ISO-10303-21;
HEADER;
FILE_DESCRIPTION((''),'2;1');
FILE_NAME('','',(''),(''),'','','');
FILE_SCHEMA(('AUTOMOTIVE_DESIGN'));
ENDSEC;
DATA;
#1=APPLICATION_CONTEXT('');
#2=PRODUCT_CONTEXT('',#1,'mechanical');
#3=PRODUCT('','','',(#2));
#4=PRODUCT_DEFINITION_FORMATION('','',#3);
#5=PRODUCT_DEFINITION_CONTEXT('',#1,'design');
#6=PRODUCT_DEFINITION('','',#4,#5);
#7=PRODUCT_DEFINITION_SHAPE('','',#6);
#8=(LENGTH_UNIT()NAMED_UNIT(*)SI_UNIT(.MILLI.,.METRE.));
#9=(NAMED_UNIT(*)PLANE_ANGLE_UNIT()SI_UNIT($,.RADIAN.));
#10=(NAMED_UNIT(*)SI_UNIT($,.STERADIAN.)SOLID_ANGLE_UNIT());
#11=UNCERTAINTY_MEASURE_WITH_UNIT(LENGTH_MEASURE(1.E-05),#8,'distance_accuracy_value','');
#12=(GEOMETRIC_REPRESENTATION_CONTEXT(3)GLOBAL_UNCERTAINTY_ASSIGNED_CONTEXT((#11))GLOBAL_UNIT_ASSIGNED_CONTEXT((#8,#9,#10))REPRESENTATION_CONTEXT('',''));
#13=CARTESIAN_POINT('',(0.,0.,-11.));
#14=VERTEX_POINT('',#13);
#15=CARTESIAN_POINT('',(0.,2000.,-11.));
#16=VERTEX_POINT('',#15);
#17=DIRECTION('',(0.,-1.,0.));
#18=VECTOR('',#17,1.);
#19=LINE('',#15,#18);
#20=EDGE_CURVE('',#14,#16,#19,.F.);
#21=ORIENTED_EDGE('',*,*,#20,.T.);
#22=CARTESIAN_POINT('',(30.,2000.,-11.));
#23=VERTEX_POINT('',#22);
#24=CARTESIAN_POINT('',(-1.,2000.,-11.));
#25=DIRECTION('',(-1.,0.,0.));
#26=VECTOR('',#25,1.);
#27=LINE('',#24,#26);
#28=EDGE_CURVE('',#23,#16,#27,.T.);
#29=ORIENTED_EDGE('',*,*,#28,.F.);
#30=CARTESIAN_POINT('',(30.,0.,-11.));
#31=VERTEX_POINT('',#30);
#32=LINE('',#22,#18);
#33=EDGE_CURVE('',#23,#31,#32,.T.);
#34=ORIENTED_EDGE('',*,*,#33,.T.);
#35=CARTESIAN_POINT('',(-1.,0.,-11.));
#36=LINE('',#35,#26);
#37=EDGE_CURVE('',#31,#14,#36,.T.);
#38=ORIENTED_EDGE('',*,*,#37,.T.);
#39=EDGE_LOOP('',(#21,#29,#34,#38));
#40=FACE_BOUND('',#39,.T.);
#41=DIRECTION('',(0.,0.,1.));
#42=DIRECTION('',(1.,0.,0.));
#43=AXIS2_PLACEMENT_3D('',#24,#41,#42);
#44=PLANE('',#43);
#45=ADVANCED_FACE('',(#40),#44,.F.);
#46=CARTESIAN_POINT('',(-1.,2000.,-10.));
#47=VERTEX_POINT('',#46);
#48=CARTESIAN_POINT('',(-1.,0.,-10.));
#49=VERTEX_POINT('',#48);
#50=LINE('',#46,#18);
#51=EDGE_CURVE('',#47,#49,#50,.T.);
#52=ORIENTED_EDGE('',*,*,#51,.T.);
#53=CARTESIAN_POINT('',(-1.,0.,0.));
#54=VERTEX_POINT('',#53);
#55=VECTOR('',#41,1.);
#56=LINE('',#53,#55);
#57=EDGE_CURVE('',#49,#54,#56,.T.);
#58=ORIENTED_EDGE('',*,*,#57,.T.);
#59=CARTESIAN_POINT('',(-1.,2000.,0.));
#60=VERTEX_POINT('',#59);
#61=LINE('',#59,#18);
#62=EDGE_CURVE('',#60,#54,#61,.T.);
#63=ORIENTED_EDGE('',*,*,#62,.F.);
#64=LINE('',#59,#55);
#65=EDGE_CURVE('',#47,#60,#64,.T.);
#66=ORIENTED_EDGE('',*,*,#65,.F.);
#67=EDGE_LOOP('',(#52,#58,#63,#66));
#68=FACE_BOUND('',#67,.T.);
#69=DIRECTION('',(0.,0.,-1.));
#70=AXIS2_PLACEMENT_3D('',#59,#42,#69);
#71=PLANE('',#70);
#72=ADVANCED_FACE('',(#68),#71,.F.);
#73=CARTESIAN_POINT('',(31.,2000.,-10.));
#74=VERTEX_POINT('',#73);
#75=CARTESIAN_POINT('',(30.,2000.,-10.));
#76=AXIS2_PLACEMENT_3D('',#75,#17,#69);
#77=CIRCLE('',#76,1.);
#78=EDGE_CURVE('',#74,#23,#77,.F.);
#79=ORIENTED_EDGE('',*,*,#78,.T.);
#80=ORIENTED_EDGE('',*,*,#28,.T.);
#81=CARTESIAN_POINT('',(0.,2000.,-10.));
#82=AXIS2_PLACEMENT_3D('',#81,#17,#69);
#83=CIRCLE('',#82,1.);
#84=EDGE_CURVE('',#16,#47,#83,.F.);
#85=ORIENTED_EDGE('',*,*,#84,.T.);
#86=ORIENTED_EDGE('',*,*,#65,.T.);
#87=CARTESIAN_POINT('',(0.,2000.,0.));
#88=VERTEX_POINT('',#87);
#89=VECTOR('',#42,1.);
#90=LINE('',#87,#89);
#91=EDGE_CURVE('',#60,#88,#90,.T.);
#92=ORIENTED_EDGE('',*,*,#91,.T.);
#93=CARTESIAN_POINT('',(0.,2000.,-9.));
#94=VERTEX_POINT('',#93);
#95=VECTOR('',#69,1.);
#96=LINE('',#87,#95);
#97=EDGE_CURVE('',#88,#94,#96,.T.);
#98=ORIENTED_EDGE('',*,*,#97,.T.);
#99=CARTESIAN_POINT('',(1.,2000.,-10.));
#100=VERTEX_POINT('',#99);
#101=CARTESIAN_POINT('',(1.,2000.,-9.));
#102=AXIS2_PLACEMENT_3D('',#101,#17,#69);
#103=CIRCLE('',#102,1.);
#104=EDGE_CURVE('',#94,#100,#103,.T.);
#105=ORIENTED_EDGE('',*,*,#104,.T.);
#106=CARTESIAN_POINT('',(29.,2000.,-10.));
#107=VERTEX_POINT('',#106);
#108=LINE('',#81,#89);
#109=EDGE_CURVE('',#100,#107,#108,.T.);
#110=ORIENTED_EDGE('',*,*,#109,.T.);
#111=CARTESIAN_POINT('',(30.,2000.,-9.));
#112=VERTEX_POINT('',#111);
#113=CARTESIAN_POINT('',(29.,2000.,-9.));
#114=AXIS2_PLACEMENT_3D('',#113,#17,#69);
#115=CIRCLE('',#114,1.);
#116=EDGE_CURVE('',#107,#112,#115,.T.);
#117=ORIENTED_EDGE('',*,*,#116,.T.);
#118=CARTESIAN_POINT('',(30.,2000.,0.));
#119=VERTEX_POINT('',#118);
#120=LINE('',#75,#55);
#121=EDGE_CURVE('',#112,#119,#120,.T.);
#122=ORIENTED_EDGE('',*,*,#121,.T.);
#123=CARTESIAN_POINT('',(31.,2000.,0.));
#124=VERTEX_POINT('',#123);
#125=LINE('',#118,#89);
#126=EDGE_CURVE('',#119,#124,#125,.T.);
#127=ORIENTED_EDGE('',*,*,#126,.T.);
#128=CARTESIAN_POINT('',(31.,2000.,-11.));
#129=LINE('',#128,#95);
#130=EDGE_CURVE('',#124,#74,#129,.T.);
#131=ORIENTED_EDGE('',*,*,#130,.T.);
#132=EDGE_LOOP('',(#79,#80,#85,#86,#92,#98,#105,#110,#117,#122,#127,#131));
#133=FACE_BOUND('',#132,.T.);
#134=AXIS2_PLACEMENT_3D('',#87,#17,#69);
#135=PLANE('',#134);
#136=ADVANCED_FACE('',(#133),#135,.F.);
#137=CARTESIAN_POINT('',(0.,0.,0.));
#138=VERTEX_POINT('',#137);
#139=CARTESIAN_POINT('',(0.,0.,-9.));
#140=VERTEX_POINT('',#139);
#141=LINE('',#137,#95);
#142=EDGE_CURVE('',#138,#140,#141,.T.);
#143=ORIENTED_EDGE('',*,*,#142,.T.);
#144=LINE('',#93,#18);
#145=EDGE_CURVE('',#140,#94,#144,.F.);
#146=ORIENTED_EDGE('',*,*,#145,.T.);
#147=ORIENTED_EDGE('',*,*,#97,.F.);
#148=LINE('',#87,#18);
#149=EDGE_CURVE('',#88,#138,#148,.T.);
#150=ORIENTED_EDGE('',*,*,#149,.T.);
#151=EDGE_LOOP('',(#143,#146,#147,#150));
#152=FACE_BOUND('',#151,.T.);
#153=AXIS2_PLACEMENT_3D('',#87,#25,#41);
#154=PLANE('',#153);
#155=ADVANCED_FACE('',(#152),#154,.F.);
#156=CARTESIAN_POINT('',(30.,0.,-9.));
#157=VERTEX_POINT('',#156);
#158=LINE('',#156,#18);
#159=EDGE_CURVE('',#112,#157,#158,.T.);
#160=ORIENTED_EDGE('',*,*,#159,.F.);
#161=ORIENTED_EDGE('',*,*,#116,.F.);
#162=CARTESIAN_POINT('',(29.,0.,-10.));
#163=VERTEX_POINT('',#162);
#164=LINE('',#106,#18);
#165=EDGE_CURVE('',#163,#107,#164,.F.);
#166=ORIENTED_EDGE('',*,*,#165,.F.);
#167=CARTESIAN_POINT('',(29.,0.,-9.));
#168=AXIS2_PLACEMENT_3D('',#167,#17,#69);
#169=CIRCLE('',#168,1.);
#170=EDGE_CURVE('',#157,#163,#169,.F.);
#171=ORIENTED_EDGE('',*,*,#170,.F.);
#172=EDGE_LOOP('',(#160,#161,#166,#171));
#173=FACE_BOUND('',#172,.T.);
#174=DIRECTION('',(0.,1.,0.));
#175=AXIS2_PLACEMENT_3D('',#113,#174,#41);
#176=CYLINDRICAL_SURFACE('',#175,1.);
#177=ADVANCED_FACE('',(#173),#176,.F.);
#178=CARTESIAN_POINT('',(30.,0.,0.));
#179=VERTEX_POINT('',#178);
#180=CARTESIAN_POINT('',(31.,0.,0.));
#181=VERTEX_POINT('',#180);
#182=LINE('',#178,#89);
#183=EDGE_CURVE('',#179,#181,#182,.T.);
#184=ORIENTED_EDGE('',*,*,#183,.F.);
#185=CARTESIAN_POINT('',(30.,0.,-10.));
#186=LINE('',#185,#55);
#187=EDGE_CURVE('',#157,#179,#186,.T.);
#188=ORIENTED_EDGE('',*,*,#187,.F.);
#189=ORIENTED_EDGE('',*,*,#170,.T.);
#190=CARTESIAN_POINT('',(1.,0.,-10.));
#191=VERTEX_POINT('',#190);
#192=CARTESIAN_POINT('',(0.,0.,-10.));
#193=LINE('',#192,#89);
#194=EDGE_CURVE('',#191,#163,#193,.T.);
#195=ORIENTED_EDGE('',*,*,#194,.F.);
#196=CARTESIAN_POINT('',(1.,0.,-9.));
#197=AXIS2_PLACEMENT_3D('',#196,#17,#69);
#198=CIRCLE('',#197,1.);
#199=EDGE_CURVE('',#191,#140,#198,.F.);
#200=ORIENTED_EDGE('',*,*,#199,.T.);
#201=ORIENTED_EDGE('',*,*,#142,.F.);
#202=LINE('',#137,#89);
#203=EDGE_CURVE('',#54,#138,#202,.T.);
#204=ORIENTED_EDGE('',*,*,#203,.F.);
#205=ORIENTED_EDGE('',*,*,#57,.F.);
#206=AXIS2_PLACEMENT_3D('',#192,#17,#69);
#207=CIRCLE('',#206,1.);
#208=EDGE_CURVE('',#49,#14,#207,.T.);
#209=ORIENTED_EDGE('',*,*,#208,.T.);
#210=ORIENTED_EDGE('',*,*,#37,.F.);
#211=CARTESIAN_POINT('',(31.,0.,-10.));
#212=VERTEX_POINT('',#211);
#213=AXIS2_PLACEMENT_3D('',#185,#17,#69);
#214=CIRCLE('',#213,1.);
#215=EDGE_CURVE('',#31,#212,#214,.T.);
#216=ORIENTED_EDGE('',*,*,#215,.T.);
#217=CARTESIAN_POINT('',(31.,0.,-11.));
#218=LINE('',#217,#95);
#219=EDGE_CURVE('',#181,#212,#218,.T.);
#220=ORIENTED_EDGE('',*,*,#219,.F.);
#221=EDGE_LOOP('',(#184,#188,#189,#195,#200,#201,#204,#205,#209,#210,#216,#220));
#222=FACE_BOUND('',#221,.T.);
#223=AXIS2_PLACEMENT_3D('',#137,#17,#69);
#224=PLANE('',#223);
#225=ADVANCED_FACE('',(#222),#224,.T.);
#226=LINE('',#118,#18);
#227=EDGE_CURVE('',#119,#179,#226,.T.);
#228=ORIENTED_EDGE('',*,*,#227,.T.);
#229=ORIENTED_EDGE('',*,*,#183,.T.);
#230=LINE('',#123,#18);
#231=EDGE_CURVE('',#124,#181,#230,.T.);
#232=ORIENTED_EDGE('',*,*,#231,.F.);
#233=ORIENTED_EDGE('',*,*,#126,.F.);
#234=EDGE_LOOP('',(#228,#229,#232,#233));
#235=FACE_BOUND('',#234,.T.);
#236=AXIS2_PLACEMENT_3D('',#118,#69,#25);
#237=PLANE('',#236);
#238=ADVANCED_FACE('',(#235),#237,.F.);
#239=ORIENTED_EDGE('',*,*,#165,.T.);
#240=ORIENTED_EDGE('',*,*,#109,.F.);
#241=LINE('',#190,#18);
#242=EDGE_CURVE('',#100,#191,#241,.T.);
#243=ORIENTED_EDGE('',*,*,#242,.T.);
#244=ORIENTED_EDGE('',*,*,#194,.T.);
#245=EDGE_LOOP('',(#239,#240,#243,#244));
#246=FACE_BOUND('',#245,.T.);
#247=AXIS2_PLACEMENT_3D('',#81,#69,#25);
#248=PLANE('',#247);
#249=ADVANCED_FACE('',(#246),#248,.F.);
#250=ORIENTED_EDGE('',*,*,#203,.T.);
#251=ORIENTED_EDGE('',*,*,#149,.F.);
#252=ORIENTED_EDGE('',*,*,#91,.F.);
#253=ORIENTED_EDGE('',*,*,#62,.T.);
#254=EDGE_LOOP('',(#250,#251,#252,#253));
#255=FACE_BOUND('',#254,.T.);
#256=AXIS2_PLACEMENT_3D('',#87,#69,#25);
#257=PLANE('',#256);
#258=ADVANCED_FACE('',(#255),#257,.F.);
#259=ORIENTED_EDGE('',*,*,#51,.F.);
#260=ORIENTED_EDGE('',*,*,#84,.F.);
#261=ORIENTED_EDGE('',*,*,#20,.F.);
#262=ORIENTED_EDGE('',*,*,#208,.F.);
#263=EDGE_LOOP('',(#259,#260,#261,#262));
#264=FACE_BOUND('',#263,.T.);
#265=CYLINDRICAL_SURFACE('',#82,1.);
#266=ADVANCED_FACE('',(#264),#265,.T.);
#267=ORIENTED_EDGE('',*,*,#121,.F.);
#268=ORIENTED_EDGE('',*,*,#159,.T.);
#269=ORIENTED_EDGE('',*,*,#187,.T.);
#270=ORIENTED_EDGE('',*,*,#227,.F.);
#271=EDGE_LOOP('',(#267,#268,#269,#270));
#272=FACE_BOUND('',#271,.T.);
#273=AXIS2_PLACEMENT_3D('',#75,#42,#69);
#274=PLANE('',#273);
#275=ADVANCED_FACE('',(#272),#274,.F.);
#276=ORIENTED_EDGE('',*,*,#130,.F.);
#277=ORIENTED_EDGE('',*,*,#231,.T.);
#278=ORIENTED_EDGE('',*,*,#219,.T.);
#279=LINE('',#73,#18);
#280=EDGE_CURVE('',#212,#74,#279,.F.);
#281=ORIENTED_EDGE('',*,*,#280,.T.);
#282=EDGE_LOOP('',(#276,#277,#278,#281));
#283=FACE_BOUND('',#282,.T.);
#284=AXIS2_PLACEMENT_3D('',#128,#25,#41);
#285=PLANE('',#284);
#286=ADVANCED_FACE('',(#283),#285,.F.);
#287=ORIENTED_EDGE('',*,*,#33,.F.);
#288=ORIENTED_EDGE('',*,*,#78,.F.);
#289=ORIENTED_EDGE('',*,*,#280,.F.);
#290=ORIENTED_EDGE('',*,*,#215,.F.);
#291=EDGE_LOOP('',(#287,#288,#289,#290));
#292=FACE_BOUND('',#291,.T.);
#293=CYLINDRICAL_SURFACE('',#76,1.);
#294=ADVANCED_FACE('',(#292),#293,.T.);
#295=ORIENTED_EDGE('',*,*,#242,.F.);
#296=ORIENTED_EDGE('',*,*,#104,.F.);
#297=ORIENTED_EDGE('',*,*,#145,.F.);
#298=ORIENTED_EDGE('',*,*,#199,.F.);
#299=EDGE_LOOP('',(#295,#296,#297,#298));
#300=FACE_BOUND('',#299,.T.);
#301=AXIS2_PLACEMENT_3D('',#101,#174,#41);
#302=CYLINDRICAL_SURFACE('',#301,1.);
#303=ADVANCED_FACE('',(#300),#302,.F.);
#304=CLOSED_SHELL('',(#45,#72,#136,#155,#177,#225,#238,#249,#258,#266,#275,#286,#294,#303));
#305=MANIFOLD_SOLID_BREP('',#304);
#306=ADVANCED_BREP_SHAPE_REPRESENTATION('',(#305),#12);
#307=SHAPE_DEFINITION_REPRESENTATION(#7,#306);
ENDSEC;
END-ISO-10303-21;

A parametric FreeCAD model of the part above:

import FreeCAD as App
import Part
import Sketcher
from FreeCAD import Vector


def edges_at(feature, points):
    """Names of the edges that pass closest to the given points."""
    edges = feature.Shape.Edges
    near = lambda p: min(range(len(edges)), key=lambda i: edges[i].distToShape(Part.Vertex(*p))[0])
    return sorted({f"Edge{near(p) + 1}" for p in points})


def add_polygon(sketch, points):
    """Adds a closed chain of lines whose ends are joined by coincident constraints."""
    first, n = sketch.GeometryCount, len(points)
    for a, b in zip(points, points[1:] + points[:1]):
        sketch.addGeometry(Part.LineSegment(App.Vector(*a, 0), App.Vector(*b, 0)), False)
    for i in range(n):
        sketch.addConstraint(Sketcher.Constraint("Coincident", first + i, 2, first + (i + 1) % n, 1))

doc = App.newDocument("Part")
body = doc.addObject("PartDesign::Body", "Body")

# Sketch on XZ plane
sketch1 = doc.addObject("Sketcher::SketchObject", "Sketch")
body.addObject(sketch1)
sketch1.AttachmentSupport = (doc.XZ_Plane, [""])
sketch1.MapMode = "FlatFace"
add_polygon(sketch1, [(0, 0), (0, -10), (30, -10), (30, 0), (31, 0), (31, -11), (-1, -11), (-1, 0)])  # lines 0-7
sketch1.addConstraint([
    Sketcher.Constraint("Vertical", 0),
    Sketcher.Constraint("Horizontal", 1),
    Sketcher.Constraint("Vertical", 2),
    Sketcher.Constraint("Horizontal", 3),
    Sketcher.Constraint("Vertical", 4),
    Sketcher.Constraint("Horizontal", 5),
    Sketcher.Constraint("Vertical", 6),
    Sketcher.Constraint("Horizontal", 7),
    Sketcher.Constraint("Coincident", 7, 2, -1, 1),
    Sketcher.Constraint("PointOnObject", 2, 2, -1),
    Sketcher.Constraint("Equal", 3, 7),
    Sketcher.Constraint("DistanceX", 1, 1, 1, 2, 30.0),
    Sketcher.Constraint("DistanceX", 3, 1, 3, 2, 1.0),
    Sketcher.Constraint("DistanceY", 0, 2, 0, 1, 10.0),
    Sketcher.Constraint("DistanceY", 4, 2, 4, 1, 11.0),
])
pad1 = doc.addObject("PartDesign::Pad", "Pad")
body.addObject(pad1)
pad1.Profile = sketch1
pad1.Length = 2000
pad1.Reversed = True
doc.recompute()

fillet = doc.addObject("PartDesign::Fillet", "Fillet")
body.addObject(fillet)
fillet.Base = (pad1, edges_at(pad1, [
    (-1, 1000, -11),
    (31, 1000, -11),
    (30, 1000, -10),
    (0, 1000, -10),
]))
fillet.Radius = 1

doc.recompute()
